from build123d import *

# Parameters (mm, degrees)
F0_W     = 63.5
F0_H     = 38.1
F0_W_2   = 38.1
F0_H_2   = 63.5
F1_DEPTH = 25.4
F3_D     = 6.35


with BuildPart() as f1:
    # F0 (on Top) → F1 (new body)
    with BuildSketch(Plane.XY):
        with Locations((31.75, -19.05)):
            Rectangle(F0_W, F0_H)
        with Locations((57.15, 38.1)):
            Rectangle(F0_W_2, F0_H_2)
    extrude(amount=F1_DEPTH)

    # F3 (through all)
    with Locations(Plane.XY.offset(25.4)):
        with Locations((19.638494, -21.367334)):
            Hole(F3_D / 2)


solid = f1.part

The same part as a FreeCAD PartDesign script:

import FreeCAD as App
import Part
import Sketcher
Q = App.Units.Quantity


def add_polygon(sketch, points):
    """Adds a closed chain of lines whose ends are joined by coincident constraints."""
    first, n = sketch.GeometryCount, len(points)
    for a, b in zip(points, points[1:] + points[:1]):
        sketch.addGeometry(Part.LineSegment(App.Vector(*a, 0), App.Vector(*b, 0)), False)
    for i in range(n):
        sketch.addConstraint(Sketcher.Constraint("Coincident", first + i, 2, first + (i + 1) % n, 1))

doc = App.newDocument("Part")
body = doc.addObject("PartDesign::Body", "Body")
body.AllowCompound = True

# Sketch on XY plane
sketch1 = body.newObject("Sketcher::SketchObject", "Sketch")
sketch1.AttachmentSupport = (doc.getObject("XY_Plane"), [""])
sketch1.MapMode = "FlatFace"
add_polygon(sketch1, [(0, 0), (0, -38), (64, -38), (64, 0)])  # lines 0-3
add_polygon(sketch1, [(38, 70), (38, 6), (76, 6), (76, 70)])  # lines 4-7
sketch1.addConstraint(Sketcher.Constraint("Vertical", 0))
sketch1.addConstraint(Sketcher.Constraint("Horizontal", 1))
sketch1.addConstraint(Sketcher.Constraint("Vertical", 2))
sketch1.addConstraint(Sketcher.Constraint("Horizontal", 3))
sketch1.addConstraint(Sketcher.Constraint("Vertical", 4))
sketch1.addConstraint(Sketcher.Constraint("Horizontal", 5))
sketch1.addConstraint(Sketcher.Constraint("Vertical", 6))
sketch1.addConstraint(Sketcher.Constraint("Horizontal", 7))
sketch1.addConstraint(Sketcher.Constraint("Coincident", 3, 2, -1, 1))
sketch1.addConstraint(Sketcher.Constraint("Equal", 7, 0))
sketch1.addConstraint(Sketcher.Constraint("Equal", 3, 4))
sketch1.addConstraint(Sketcher.Constraint("DistanceX", 1, 1, 1, 2, Q("2.5 in")))
sketch1.addConstraint(Sketcher.Constraint("DistanceX", 5, 1, 5, 2, Q("1.5 in")))
sketch1.addConstraint(Sketcher.Constraint("DistanceX", -1, 1, 5, 2, Q("3 in")))
sketch1.addConstraint(Sketcher.Constraint("DistanceY", -1, 1, 4, 2, Q("0.25 in")))
pad1 = body.newObject("PartDesign::Pad", "Pad")
pad1.Profile = sketch1
pad1.Length = Q("1 in")

# Sketch on XY plane
sketch2 = body.newObject("Sketcher::SketchObject", "Sketch001")
sketch2.AttachmentSupport = (doc.getObject("XY_Plane"), [""])
sketch2.MapMode = "FlatFace"
sketch2.AttachmentOffset = App.Placement(App.Vector(0, 0, 1 * 25.4), App.Rotation())
sketch2.addGeometry(Part.Circle(App.Vector(19.6, -21.4, 0), App.Vector(0, 0, 1), 3.2), False)
sketch2.addConstraint(Sketcher.Constraint("Diameter", 0, Q("0.25 in")))
sketch2.addConstraint(Sketcher.Constraint("DistanceX", -1, 1, 0, 3, 19.638494))
sketch2.addConstraint(Sketcher.Constraint("DistanceY", 0, 3, -1, 1, 21.367334))
doc.recompute()
hole = body.newObject("PartDesign::Hole", "Hole")
hole.Profile = sketch2
hole.ThreadType = "None"
hole.Diameter = Q("0.25 in")
hole.DepthType = "ThroughAll"

doc.recompute()
